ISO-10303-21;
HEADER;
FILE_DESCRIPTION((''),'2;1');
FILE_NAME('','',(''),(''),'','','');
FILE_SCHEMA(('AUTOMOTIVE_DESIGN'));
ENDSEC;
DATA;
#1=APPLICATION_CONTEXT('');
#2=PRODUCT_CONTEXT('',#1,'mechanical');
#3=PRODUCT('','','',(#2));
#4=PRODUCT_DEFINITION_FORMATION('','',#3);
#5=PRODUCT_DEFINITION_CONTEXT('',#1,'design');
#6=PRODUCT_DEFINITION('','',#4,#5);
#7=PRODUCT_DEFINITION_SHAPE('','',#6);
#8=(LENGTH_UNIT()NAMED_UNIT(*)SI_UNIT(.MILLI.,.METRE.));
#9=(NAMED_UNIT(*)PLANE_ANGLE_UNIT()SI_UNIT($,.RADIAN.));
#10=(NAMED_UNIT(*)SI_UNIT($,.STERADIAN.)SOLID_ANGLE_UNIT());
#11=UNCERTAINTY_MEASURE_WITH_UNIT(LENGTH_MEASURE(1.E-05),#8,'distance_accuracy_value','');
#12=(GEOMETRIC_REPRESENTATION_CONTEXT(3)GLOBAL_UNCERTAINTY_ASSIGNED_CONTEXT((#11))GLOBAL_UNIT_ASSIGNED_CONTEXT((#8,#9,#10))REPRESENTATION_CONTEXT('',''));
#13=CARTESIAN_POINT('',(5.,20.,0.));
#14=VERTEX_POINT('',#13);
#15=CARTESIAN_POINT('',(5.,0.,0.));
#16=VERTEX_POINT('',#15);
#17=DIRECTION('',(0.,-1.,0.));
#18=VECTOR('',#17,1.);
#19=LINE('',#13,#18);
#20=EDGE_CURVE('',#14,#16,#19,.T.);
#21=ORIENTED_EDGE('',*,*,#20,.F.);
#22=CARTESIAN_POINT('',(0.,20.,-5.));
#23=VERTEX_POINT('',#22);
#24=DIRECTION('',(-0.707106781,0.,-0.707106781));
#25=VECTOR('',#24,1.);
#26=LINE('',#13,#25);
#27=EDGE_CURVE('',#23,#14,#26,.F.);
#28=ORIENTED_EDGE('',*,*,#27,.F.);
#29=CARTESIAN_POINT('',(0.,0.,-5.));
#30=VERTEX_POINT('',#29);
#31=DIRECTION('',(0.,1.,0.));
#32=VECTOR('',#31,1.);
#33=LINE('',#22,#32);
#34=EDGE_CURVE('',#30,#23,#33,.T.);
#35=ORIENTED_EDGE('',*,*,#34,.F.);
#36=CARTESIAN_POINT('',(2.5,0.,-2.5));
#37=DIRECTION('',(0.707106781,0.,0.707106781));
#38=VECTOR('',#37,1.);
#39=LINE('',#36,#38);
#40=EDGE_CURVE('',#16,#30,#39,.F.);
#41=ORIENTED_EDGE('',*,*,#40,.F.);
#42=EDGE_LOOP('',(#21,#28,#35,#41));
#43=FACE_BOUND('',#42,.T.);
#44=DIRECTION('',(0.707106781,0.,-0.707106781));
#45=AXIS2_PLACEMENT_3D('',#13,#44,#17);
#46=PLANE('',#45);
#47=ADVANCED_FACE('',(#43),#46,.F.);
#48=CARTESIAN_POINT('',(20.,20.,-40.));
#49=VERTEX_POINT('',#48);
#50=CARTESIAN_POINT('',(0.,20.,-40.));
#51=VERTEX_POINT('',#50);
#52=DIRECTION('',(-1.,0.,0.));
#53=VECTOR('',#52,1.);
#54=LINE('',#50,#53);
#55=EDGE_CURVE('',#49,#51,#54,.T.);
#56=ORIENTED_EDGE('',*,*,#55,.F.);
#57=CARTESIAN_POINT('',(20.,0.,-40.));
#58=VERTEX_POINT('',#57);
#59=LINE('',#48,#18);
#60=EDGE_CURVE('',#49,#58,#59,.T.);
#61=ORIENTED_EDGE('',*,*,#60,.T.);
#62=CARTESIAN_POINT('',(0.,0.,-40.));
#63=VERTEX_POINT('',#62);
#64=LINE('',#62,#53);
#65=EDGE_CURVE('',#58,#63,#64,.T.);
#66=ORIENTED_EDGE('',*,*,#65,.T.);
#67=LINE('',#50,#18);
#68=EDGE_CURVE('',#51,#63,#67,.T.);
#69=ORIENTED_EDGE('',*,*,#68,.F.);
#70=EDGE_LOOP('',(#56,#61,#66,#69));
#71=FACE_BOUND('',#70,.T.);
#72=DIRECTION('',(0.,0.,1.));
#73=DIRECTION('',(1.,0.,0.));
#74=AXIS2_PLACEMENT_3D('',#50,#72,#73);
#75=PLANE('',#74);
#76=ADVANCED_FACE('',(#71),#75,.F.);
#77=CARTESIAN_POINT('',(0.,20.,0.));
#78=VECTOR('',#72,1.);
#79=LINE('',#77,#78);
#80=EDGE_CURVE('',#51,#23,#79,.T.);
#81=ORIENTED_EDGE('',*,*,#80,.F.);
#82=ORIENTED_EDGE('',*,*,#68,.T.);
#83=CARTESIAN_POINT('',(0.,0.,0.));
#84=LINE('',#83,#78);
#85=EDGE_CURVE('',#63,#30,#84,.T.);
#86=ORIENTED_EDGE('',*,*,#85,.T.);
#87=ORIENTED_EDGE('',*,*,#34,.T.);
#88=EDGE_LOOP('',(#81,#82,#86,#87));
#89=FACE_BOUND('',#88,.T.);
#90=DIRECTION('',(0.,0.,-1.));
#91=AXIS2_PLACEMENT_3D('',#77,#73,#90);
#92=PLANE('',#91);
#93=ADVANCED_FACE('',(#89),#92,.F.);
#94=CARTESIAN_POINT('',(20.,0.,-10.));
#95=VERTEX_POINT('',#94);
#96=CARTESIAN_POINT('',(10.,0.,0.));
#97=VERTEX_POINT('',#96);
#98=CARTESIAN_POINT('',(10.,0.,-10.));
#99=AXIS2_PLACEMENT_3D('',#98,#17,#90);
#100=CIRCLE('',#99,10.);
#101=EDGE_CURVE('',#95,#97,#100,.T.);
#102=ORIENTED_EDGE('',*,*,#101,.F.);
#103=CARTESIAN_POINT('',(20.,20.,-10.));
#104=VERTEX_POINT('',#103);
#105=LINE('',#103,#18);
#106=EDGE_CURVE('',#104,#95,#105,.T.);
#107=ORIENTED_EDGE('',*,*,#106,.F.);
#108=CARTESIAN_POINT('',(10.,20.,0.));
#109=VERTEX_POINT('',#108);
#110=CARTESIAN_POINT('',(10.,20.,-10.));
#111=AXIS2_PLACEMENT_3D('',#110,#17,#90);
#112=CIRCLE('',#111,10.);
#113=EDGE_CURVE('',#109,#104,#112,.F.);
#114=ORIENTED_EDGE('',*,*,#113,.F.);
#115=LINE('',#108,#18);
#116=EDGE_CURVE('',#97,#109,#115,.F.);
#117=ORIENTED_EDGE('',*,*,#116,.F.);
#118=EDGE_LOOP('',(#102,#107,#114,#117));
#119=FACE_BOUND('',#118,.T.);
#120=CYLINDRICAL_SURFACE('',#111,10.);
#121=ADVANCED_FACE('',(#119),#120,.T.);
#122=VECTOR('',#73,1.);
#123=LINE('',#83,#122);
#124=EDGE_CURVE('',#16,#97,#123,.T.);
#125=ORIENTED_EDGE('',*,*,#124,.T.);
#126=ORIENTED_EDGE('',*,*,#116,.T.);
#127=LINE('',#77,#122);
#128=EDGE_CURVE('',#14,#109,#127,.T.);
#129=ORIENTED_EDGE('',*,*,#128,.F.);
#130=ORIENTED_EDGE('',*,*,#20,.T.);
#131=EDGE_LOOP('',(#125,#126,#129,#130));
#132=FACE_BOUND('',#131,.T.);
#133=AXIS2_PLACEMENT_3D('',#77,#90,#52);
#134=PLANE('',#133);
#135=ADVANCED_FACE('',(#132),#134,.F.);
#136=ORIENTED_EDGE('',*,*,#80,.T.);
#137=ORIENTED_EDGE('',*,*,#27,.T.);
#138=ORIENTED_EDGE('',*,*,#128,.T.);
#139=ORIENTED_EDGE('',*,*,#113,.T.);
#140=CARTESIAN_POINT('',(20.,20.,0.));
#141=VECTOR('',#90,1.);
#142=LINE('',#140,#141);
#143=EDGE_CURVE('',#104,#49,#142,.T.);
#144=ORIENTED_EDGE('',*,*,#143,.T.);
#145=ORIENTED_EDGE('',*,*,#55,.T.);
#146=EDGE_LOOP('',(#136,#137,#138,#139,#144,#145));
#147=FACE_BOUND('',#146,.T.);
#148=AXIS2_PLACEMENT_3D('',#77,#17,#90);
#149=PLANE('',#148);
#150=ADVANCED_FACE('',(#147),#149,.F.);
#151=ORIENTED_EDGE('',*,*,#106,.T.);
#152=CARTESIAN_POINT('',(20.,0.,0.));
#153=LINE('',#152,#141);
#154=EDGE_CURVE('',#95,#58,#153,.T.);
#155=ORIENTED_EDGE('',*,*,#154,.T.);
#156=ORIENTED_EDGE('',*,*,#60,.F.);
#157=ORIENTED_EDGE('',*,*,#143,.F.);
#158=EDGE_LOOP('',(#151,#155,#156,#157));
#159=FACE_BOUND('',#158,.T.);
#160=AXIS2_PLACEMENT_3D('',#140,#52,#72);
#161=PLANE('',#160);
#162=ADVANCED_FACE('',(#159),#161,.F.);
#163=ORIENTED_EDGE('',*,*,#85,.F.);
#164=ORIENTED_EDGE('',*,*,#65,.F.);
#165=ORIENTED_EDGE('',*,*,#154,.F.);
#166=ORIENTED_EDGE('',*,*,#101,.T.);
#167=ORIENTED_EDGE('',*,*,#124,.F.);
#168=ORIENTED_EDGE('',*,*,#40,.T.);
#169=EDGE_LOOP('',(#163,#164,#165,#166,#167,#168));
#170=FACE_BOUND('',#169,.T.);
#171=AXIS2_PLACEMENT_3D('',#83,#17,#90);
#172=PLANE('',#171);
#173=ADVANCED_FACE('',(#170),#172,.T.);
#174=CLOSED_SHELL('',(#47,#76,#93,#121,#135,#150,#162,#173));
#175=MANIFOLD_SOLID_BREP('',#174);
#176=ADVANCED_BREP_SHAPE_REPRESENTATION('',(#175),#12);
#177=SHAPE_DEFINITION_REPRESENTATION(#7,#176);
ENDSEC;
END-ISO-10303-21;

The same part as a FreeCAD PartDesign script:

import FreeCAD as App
import Part
import Sketcher
from FreeCAD import Vector
Q = App.Units.Quantity


def edges_at(feature, points):
    """Names of the edges that pass closest to the given points."""
    edges = feature.Shape.Edges
    near = lambda p: min(range(len(edges)), key=lambda i: edges[i].distToShape(Part.Vertex(*p))[0])
    return sorted({f"Edge{near(p) + 1}" for p in points})


def add_polygon(sketch, points):
    """Adds a closed chain of lines whose ends are joined by coincident constraints."""
    first, n = sketch.GeometryCount, len(points)
    for a, b in zip(points, points[1:] + points[:1]):
        sketch.addGeometry(Part.LineSegment(App.Vector(*a, 0), App.Vector(*b, 0)), False)
    for i in range(n):
        sketch.addConstraint(Sketcher.Constraint("Coincident", first + i, 2, first + (i + 1) % n, 1))

doc = App.newDocument("Part")
body = doc.addObject("PartDesign::Body", "Body")

# Sketch on XZ plane
sketch1 = body.newObject("Sketcher::SketchObject", "Sketch")
sketch1.AttachmentSupport = (doc.getObject("XZ_Plane"), [""])
sketch1.MapMode = "FlatFace"
add_polygon(sketch1, [(0, -40), (0, 0), (20, 0), (20, -40)])  # lines 0-3
sketch1.addConstraint(Sketcher.Constraint("Vertical", 0))
sketch1.addConstraint(Sketcher.Constraint("Horizontal", 1))
sketch1.addConstraint(Sketcher.Constraint("Vertical", 2))
sketch1.addConstraint(Sketcher.Constraint("Horizontal", 3))
sketch1.addConstraint(Sketcher.Constraint("Coincident", 0, 2, -1, 1))
sketch1.addConstraint(Sketcher.Constraint("DistanceX", 1, 1, 1, 2, Q("20 mm")))
sketch1.addConstraint(Sketcher.Constraint("DistanceY", 0, 1, 0, 2, Q("40 mm")))
pad1 = body.newObject("PartDesign::Pad", "Pad")
pad1.Profile = sketch1
pad1.Length = 20
pad1.Reversed = True
doc.recompute()

fillet = body.newObject("PartDesign::Fillet", "Fillet")
fillet.Base = (pad1, edges_at(pad1, [(20, 10, 0)]))
fillet.Radius = 10
doc.recompute()

chamfer = body.newObject("PartDesign::Chamfer", "Chamfer")
chamfer.Base = (fillet, edges_at(fillet, [(0, 10, 0)]))
chamfer.Size = 5

doc.recompute()
